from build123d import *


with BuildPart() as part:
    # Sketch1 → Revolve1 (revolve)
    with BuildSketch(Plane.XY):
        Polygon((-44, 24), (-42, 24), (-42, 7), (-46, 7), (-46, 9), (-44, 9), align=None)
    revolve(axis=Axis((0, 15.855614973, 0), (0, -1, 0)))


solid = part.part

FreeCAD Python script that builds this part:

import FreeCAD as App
import Part
import Sketcher
from FreeCAD import Vector


def add_polygon(sketch, points):
    """Adds a closed chain of lines whose ends are joined by coincident constraints."""
    first, n = sketch.GeometryCount, len(points)
    for a, b in zip(points, points[1:] + points[:1]):
        sketch.addGeometry(Part.LineSegment(App.Vector(*a, 0), App.Vector(*b, 0)), False)
    for i in range(n):
        sketch.addConstraint(Sketcher.Constraint("Coincident", first + i, 2, first + (i + 1) % n, 1))

doc = App.newDocument("Part")
params = doc.addObject("Spreadsheet::Sheet", "Params")
for row, (alias, value) in enumerate([
    ("sketch1_width", "2 mm"),
    ("sketch1_height", "15 mm"),
    ("revolution_angle", "360 deg"),
], start=1):
    params.set(f"A{row}", alias)
    params.set(f"B{row}", "=" + value)
    params.setAlias(f"B{row}", alias)

body = doc.addObject("PartDesign::Body", "Body")

# Sketch on XY plane
sketch1 = body.newObject("Sketcher::SketchObject", "Sketch")
sketch1.AttachmentSupport = (doc.getObject("XY_Plane"), [""])
sketch1.MapMode = "FlatFace"
add_polygon(sketch1, [(-42, 24), (-44, 24), (-44, 9), (-46, 9), (-46, 7), (-42, 7)])  # lines 0-5
sketch1.addConstraint(Sketcher.Constraint("Horizontal", 0))
sketch1.addConstraint(Sketcher.Constraint("Vertical", 1))
sketch1.addConstraint(Sketcher.Constraint("Horizontal", 2))
sketch1.addConstraint(Sketcher.Constraint("Vertical", 3))
sketch1.addConstraint(Sketcher.Constraint("Horizontal", 4))
sketch1.addConstraint(Sketcher.Constraint("Vertical", 5))
sketch1.addConstraint(Sketcher.Constraint("Equal", 0, 2))
sketch1.addConstraint(Sketcher.Constraint("Equal", 2, 3))
sketch1.addConstraint(Sketcher.Constraint("DistanceX", 0, 2, 0, 1, 2.0))
sketch1.addConstraint(Sketcher.Constraint("DistanceY", 1, 2, 1, 1, 15.0))
sketch1.addConstraint(Sketcher.Constraint("DistanceX", 0, 2, -1, 1, 44.0))
sketch1.addConstraint(Sketcher.Constraint("DistanceY", -1, 1, 0, 2, 24.0))
sketch1.setExpression("Constraints[14]", "Params.sketch1_width")
sketch1.setExpression("Constraints[15]", "Params.sketch1_height")
revolution = body.newObject("PartDesign::Revolution", "Revolution")
revolution.Profile = sketch1
revolution.ReferenceAxis = (sketch1, ["V_Axis"])
revolution.setExpression("Angle", "Params.revolution_angle")

doc.recompute()
